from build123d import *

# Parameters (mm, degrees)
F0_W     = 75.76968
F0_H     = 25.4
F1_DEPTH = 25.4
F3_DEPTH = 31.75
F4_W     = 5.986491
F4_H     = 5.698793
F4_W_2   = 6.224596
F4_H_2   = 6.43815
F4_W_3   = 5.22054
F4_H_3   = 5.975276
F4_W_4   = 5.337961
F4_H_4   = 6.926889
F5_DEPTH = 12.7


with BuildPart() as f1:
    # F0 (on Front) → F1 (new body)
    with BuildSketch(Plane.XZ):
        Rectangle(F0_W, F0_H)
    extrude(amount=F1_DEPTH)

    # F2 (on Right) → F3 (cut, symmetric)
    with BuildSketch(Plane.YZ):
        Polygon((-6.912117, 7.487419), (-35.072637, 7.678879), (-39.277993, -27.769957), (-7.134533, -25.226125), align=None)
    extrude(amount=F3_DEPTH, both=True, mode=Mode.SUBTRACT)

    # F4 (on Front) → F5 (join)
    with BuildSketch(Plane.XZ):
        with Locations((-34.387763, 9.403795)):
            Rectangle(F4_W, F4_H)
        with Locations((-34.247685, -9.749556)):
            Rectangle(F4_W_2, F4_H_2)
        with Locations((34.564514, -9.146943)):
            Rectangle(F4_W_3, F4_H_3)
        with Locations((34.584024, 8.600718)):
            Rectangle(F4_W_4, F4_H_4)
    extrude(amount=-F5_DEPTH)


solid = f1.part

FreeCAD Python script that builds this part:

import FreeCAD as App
import Part
import Sketcher
Q = App.Units.Quantity


def add_polygon(sketch, points):
    """Adds a closed chain of lines whose ends are joined by coincident constraints."""
    first, n = sketch.GeometryCount, len(points)
    for a, b in zip(points, points[1:] + points[:1]):
        sketch.addGeometry(Part.LineSegment(App.Vector(*a, 0), App.Vector(*b, 0)), False)
    for i in range(n):
        sketch.addConstraint(Sketcher.Constraint("Coincident", first + i, 2, first + (i + 1) % n, 1))

doc = App.newDocument("Part")
body = doc.addObject("PartDesign::Body", "Body")

# Sketch on XZ plane
sketch1 = body.newObject("Sketcher::SketchObject", "Sketch")
sketch1.AttachmentSupport = (doc.getObject("XZ_Plane"), [""])
sketch1.MapMode = "FlatFace"
add_polygon(sketch1, [(-38, 13), (-38, -13), (38, -13), (38, 13)])  # lines 0-3
sketch1.addConstraint(Sketcher.Constraint("Vertical", 0))
sketch1.addConstraint(Sketcher.Constraint("Horizontal", 1))
sketch1.addConstraint(Sketcher.Constraint("Vertical", 2))
sketch1.addConstraint(Sketcher.Constraint("Horizontal", 3))
sketch1.addConstraint(Sketcher.Constraint("Symmetric", 0, 2, 2, 2, -1, 1))
sketch1.addConstraint(Sketcher.Constraint("DistanceY", 0, 2, 0, 1, Q("1 in")))
sketch1.addConstraint(Sketcher.Constraint("DistanceX", 1, 1, 1, 2, Q("75.76968 mm")))
pad1 = body.newObject("PartDesign::Pad", "Pad")
pad1.Profile = sketch1
pad1.Length = Q("1 in")

# Sketch on YZ plane
sketch2 = body.newObject("Sketcher::SketchObject", "Sketch001")
sketch2.AttachmentSupport = (doc.getObject("YZ_Plane"), [""])
sketch2.MapMode = "FlatFace"
add_polygon(sketch2, [(-7, 7), (-35, 8), (-39, -28), (-7, -25)])  # lines 0-3
sketch2.addConstraint(Sketcher.Constraint("Perpendicular", 0, 3))
sketch2.addConstraint(Sketcher.Constraint("Distance", 3, Q("32.7143 mm")))
sketch2.addConstraint(Sketcher.Constraint("Distance", 0, Q("28.161171 mm")))
sketch2.addConstraint(Sketcher.Constraint("Distance", 1, Q("35.697409 mm")))
sketch2.addConstraint(Sketcher.Constraint("DistanceY", -1, 1, 0, 2, Q("7.678879 mm")))
sketch2.addConstraint(Sketcher.Constraint("DistanceY", -1, 1, 3, 2, Q("7.487419 mm")))
sketch2.addConstraint(Sketcher.Constraint("DistanceX", 1, 2, 2, 2, Q("32.14346 mm")))
sketch2.addConstraint(Sketcher.Constraint("DistanceX", 0, 2, -1, 1, Q("35.072637 mm")))
pocket1 = body.newObject("PartDesign::Pocket", "Pocket")
pocket1.Profile = sketch2
pocket1.Length = Q("2.5 in")
pocket1.Midplane = True

# Sketch on XZ plane
sketch3 = body.newObject("Sketcher::SketchObject", "Sketch002")
sketch3.AttachmentSupport = (doc.getObject("XZ_Plane"), [""])
sketch3.MapMode = "FlatFace"
add_polygon(sketch3, [(-37, 12), (-37, 7), (-31, 7), (-31, 12)])  # lines 0-3
add_polygon(sketch3, [(-37, -7), (-37, -13), (-31, -13), (-31, -7)])  # lines 4-7
add_polygon(sketch3, [(32, -6), (32, -12), (37, -12), (37, -6)])  # lines 8-11
add_polygon(sketch3, [(32, 12), (32, 5), (37, 5), (37, 12)])  # lines 12-15
sketch3.addConstraint(Sketcher.Constraint("Vertical", 0))
sketch3.addConstraint(Sketcher.Constraint("Horizontal", 1))
sketch3.addConstraint(Sketcher.Constraint("Vertical", 2))
sketch3.addConstraint(Sketcher.Constraint("Horizontal", 3))
sketch3.addConstraint(Sketcher.Constraint("Vertical", 4))
sketch3.addConstraint(Sketcher.Constraint("Horizontal", 5))
sketch3.addConstraint(Sketcher.Constraint("Vertical", 6))
sketch3.addConstraint(Sketcher.Constraint("Horizontal", 7))
sketch3.addConstraint(Sketcher.Constraint("Vertical", 8))
sketch3.addConstraint(Sketcher.Constraint("Horizontal", 9))
sketch3.addConstraint(Sketcher.Constraint("Vertical", 10))
sketch3.addConstraint(Sketcher.Constraint("Horizontal", 11))
sketch3.addConstraint(Sketcher.Constraint("Vertical", 12))
sketch3.addConstraint(Sketcher.Constraint("Horizontal", 13))
sketch3.addConstraint(Sketcher.Constraint("Vertical", 14))
sketch3.addConstraint(Sketcher.Constraint("Horizontal", 15))
sketch3.addConstraint(Sketcher.Constraint("DistanceX", 1, 1, 1, 2, Q("5.986491 mm")))
sketch3.addConstraint(Sketcher.Constraint("DistanceX", 9, 1, 9, 2, Q("5.22054 mm")))
sketch3.addConstraint(Sketcher.Constraint("DistanceX", 13, 1, 13, 2, Q("5.337961 mm")))
sketch3.addConstraint(Sketcher.Constraint("DistanceY", 4, 2, 4, 1, Q("6.43815 mm")))
sketch3.addConstraint(Sketcher.Constraint("DistanceY", 12, 2, 12, 1, Q("6.926889 mm")))
sketch3.addConstraint(Sketcher.Constraint("DistanceY", -1, 1, 0, 2, Q("6.554398 mm")))
sketch3.addConstraint(Sketcher.Constraint("DistanceY", 8, 2, 6, 2, Q("5.6041 mm")))
sketch3.addConstraint(Sketcher.Constraint("DistanceX", 1, 2, 9, 2, Q("68.569301 mm")))
sketch3.addConstraint(Sketcher.Constraint("DistanceX", 12, 2, 11, 2, Q("0.0392 mm")))
sketch3.addConstraint(Sketcher.Constraint("DistanceX", 5, 1, 5, 2, Q("6.224596 mm")))
sketch3.addConstraint(Sketcher.Constraint("DistanceY", 0, 2, 0, 1, Q("5.698793 mm")))
sketch3.addConstraint(Sketcher.Constraint("DistanceY", 8, 2, 8, 1, Q("5.975276 mm")))
sketch3.addConstraint(Sketcher.Constraint("DistanceX", 0, 2, -1, 1, Q("37.381009 mm")))
sketch3.addConstraint(Sketcher.Constraint("DistanceY", 4, 2, -1, 1, Q("12.968631 mm")))
sketch3.addConstraint(Sketcher.Constraint("DistanceX", 1, 2, 5, 2, Q("0.25913 mm")))
sketch3.addConstraint(Sketcher.Constraint("DistanceY", 11, 2, 12, 2, Q("11.296578 mm")))
pad2 = body.newObject("PartDesign::Pad", "Pad001")
pad2.Profile = sketch3
pad2.Length = Q("0.5 in")
pad2.Reversed = True

doc.recompute()
